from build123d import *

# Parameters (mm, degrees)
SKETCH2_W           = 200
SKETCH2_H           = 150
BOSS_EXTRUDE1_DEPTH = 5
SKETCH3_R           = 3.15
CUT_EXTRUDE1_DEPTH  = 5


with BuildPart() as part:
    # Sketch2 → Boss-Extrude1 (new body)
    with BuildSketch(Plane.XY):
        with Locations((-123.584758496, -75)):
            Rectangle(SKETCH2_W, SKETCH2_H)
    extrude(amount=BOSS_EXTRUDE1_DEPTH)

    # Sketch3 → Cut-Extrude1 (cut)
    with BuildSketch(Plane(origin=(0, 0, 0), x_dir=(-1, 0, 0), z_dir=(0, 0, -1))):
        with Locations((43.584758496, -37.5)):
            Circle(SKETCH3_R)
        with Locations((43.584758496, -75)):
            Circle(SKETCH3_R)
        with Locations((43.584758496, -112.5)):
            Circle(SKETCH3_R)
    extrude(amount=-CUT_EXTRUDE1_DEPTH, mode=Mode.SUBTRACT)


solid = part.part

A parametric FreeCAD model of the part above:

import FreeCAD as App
import Part
import Sketcher
Q = App.Units.Quantity

doc = App.newDocument("Part")
body = doc.addObject("PartDesign::Body", "Body")

# Sketch on XY plane
sketch1 = body.newObject("Sketcher::SketchObject", "Sketch")
sketch1.AttachmentSupport = (doc.getObject("XY_Plane"), [""])
sketch1.MapMode = "FlatFace"
sketch1.addGeometry(Part.LineSegment(App.Vector(-223.584758, 0, 0), App.Vector(-223.584758, -150, 0)), False)
sketch1.addGeometry(Part.LineSegment(App.Vector(-223.584758, -150, 0), App.Vector(-23.584758, -150, 0)), False)
sketch1.addGeometry(Part.LineSegment(App.Vector(-23.584758, -150, 0), App.Vector(-23.584758, 0, 0)), False)
sketch1.addGeometry(Part.LineSegment(App.Vector(-23.584758, 0, 0), App.Vector(-223.584758, 0, 0)), False)
sketch1.addConstraint(Sketcher.Constraint("Coincident", 0, 2, 1, 1))
sketch1.addConstraint(Sketcher.Constraint("Coincident", 1, 2, 2, 1))
sketch1.addConstraint(Sketcher.Constraint("Coincident", 2, 2, 3, 1))
sketch1.addConstraint(Sketcher.Constraint("Coincident", 3, 2, 0, 1))
sketch1.addConstraint(Sketcher.Constraint("Vertical", 0))
sketch1.addConstraint(Sketcher.Constraint("Horizontal", 1))
sketch1.addConstraint(Sketcher.Constraint("Vertical", 2))
sketch1.addConstraint(Sketcher.Constraint("Horizontal", 3))
sketch1.addConstraint(Sketcher.Constraint("PointOnObject", 2, 2, -1))
sketch1.addConstraint(Sketcher.Constraint("DistanceX", 1, 1, 1, 2, Q("200 mm")))
sketch1.addConstraint(Sketcher.Constraint("DistanceY", 0, 2, 0, 1, Q("150 mm")))
sketch1.addConstraint(Sketcher.Constraint("DistanceX", 0, 2, -1, 1, Q("223.584758 mm")))
pad1 = body.newObject("PartDesign::Pad", "Pad")
pad1.Profile = sketch1
pad1.Length = 5

# Sketch on XY plane
sketch2 = body.newObject("Sketcher::SketchObject", "Sketch001")
sketch2.AttachmentSupport = (doc.getObject("XY_Plane"), [""])
sketch2.MapMode = "FlatFace"
sketch2.addGeometry(Part.Circle(App.Vector(-43.584758, -37.5, 0), App.Vector(0, 0, 1), 3.15), False)
sketch2.addGeometry(Part.Circle(App.Vector(-43.584758, -75, 0), App.Vector(0, 0, 1), 3.15), False)
sketch2.addGeometry(Part.Circle(App.Vector(-43.584758, -112.5, 0), App.Vector(0, 0, 1), 3.15), False)
sketch2.addConstraint(Sketcher.Constraint("Equal", 0, 1))
sketch2.addConstraint(Sketcher.Constraint("Equal", 1, 2))
sketch2.addConstraint(Sketcher.Constraint("Vertical", 0, 3, 1, 3))
sketch2.addConstraint(Sketcher.Constraint("Vertical", 1, 3, 2, 3))
sketch2.addConstraint(Sketcher.Constraint("Diameter", 0, Q("6.3 mm")))
sketch2.addConstraint(Sketcher.Constraint("DistanceY", 1, 3, -1, 1, Q("75 mm")))
sketch2.addConstraint(Sketcher.Constraint("DistanceY", 2, 3, 0, 3, Q("75 mm")))
sketch2.addConstraint(Sketcher.Constraint("DistanceY", 0, 3, -1, 1, Q("37.5 mm")))
sketch2.addConstraint(Sketcher.Constraint("DistanceX", 0, 3, -1, 1, Q("43.584758 mm")))
pocket1 = body.newObject("PartDesign::Pocket", "Pocket")
pocket1.Profile = sketch2
pocket1.Length = 5
pocket1.Reversed = True

doc.recompute()
